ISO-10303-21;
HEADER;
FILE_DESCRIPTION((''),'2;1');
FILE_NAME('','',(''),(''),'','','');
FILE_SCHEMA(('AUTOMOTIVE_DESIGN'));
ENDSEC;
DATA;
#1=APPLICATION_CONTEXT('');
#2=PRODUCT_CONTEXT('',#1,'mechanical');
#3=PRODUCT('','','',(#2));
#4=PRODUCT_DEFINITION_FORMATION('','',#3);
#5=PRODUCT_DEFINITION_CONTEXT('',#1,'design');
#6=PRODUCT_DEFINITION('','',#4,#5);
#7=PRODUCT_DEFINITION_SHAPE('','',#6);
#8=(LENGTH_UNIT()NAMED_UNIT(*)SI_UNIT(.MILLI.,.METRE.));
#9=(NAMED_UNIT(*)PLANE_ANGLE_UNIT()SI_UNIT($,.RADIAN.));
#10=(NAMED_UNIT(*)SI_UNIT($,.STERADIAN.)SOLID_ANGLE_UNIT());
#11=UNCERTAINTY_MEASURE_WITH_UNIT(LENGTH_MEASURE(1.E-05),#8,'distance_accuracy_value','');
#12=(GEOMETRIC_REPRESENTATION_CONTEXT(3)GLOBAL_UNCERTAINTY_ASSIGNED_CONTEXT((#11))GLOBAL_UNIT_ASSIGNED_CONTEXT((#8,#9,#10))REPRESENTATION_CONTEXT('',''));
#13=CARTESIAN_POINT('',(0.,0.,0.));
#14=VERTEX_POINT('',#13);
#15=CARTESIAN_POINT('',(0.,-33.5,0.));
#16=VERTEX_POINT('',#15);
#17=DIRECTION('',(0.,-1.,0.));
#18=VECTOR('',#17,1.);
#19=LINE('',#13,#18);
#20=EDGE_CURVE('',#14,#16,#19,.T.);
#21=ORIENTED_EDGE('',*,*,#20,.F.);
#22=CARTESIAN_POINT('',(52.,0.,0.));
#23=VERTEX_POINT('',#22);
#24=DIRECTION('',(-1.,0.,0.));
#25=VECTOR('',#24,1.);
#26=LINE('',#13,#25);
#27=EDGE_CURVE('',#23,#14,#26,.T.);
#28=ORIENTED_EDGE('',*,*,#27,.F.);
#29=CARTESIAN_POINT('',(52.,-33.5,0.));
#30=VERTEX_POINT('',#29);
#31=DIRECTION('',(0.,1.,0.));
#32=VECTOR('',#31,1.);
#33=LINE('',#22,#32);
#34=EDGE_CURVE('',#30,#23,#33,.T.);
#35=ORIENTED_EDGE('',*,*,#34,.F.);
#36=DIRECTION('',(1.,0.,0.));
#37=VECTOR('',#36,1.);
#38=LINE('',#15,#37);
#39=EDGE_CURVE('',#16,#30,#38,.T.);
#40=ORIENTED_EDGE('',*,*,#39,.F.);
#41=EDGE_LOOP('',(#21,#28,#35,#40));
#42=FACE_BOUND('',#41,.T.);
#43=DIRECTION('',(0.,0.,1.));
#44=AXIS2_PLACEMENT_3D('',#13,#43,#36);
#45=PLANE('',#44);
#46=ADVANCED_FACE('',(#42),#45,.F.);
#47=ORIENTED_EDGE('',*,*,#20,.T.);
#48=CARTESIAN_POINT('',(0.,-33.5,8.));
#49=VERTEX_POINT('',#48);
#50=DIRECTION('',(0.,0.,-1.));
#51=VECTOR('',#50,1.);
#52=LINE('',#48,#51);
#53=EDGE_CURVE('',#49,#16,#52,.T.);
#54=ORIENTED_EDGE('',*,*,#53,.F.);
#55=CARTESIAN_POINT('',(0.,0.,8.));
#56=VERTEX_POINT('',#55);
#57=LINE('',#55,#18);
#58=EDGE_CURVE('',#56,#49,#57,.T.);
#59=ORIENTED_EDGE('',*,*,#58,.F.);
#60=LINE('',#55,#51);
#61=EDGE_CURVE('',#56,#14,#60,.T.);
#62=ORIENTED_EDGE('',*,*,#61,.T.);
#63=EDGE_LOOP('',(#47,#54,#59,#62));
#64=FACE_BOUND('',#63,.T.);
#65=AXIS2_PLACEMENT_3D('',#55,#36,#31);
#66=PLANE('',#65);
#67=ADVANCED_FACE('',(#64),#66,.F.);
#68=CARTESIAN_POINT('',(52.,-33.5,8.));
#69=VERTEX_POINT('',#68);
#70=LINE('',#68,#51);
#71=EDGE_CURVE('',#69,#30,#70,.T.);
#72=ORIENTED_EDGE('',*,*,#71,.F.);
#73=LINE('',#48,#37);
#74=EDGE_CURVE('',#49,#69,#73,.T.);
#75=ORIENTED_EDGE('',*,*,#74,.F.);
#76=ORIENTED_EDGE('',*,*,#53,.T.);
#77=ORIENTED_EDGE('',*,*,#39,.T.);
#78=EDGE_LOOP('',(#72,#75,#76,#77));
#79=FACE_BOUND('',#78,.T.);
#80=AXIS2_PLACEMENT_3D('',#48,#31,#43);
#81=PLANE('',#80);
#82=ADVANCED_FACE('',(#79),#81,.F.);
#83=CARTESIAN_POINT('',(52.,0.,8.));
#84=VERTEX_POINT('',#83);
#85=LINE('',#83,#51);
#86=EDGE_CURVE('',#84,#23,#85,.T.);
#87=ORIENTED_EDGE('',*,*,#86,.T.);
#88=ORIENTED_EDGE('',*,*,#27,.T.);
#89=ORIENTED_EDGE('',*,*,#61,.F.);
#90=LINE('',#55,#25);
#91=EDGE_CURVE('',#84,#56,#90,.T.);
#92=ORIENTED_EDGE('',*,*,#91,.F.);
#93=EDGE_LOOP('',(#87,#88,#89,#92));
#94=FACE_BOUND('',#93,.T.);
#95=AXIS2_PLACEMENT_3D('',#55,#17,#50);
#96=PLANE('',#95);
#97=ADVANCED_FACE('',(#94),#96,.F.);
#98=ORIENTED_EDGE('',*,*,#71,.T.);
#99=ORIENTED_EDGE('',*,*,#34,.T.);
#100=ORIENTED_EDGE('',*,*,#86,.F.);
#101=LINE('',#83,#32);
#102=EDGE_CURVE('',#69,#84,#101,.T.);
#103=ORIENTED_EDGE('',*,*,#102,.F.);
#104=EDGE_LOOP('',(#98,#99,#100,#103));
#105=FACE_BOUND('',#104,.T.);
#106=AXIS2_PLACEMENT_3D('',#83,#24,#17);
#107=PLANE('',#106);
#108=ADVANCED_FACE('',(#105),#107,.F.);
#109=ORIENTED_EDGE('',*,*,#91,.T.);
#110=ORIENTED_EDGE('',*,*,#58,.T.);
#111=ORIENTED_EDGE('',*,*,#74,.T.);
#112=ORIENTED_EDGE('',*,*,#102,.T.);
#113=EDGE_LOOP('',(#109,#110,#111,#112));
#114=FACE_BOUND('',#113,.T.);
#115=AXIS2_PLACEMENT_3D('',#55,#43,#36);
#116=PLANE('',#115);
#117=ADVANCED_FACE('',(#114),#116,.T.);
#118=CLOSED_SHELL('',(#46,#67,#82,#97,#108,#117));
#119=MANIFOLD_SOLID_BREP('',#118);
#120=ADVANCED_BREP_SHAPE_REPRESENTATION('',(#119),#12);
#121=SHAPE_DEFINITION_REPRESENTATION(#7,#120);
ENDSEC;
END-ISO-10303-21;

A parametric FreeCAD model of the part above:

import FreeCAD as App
import Part
import Sketcher
from FreeCAD import Vector


def add_polygon(sketch, points):
    """Adds a closed chain of lines whose ends are joined by coincident constraints."""
    first, n = sketch.GeometryCount, len(points)
    for a, b in zip(points, points[1:] + points[:1]):
        sketch.addGeometry(Part.LineSegment(App.Vector(*a, 0), App.Vector(*b, 0)), False)
    for i in range(n):
        sketch.addConstraint(Sketcher.Constraint("Coincident", first + i, 2, first + (i + 1) % n, 1))

doc = App.newDocument("Part")
params = doc.addObject("Spreadsheet::Sheet", "Params")
for row, (alias, value) in enumerate([
    ("sketch1_width", "52 mm"),
    ("sketch1_height", "33.5 mm"),
    ("pad1_length", "8 mm"),
], start=1):
    params.set(f"A{row}", alias)
    params.set(f"B{row}", "=" + value)
    params.setAlias(f"B{row}", alias)

body = doc.addObject("PartDesign::Body", "Body")

# Sketch on XY plane
sketch1 = doc.addObject("Sketcher::SketchObject", "Sketch")
body.addObject(sketch1)
sketch1.AttachmentSupport = (doc.XY_Plane, [""])
sketch1.MapMode = "FlatFace"
add_polygon(sketch1, [(0, 0), (0, -34), (52, -34), (52, 0)])  # lines 0-3
sketch1.addConstraint([
    Sketcher.Constraint("Vertical", 0),
    Sketcher.Constraint("Horizontal", 1),
    Sketcher.Constraint("Vertical", 2),
    Sketcher.Constraint("Horizontal", 3),
    Sketcher.Constraint("Coincident", 3, 2, -1, 1),
    Sketcher.Constraint("DistanceX", 1, 1, 1, 2, 52.0),
    Sketcher.Constraint("DistanceY", 0, 2, 0, 1, 33.5),
])
sketch1.setExpression("Constraints[9]", "Params.sketch1_width")
sketch1.setExpression("Constraints[10]", "Params.sketch1_height")
pad1 = doc.addObject("PartDesign::Pad", "Pad")
body.addObject(pad1)
pad1.Profile = sketch1
pad1.setExpression("Length", "Params.pad1_length")

doc.recompute()
